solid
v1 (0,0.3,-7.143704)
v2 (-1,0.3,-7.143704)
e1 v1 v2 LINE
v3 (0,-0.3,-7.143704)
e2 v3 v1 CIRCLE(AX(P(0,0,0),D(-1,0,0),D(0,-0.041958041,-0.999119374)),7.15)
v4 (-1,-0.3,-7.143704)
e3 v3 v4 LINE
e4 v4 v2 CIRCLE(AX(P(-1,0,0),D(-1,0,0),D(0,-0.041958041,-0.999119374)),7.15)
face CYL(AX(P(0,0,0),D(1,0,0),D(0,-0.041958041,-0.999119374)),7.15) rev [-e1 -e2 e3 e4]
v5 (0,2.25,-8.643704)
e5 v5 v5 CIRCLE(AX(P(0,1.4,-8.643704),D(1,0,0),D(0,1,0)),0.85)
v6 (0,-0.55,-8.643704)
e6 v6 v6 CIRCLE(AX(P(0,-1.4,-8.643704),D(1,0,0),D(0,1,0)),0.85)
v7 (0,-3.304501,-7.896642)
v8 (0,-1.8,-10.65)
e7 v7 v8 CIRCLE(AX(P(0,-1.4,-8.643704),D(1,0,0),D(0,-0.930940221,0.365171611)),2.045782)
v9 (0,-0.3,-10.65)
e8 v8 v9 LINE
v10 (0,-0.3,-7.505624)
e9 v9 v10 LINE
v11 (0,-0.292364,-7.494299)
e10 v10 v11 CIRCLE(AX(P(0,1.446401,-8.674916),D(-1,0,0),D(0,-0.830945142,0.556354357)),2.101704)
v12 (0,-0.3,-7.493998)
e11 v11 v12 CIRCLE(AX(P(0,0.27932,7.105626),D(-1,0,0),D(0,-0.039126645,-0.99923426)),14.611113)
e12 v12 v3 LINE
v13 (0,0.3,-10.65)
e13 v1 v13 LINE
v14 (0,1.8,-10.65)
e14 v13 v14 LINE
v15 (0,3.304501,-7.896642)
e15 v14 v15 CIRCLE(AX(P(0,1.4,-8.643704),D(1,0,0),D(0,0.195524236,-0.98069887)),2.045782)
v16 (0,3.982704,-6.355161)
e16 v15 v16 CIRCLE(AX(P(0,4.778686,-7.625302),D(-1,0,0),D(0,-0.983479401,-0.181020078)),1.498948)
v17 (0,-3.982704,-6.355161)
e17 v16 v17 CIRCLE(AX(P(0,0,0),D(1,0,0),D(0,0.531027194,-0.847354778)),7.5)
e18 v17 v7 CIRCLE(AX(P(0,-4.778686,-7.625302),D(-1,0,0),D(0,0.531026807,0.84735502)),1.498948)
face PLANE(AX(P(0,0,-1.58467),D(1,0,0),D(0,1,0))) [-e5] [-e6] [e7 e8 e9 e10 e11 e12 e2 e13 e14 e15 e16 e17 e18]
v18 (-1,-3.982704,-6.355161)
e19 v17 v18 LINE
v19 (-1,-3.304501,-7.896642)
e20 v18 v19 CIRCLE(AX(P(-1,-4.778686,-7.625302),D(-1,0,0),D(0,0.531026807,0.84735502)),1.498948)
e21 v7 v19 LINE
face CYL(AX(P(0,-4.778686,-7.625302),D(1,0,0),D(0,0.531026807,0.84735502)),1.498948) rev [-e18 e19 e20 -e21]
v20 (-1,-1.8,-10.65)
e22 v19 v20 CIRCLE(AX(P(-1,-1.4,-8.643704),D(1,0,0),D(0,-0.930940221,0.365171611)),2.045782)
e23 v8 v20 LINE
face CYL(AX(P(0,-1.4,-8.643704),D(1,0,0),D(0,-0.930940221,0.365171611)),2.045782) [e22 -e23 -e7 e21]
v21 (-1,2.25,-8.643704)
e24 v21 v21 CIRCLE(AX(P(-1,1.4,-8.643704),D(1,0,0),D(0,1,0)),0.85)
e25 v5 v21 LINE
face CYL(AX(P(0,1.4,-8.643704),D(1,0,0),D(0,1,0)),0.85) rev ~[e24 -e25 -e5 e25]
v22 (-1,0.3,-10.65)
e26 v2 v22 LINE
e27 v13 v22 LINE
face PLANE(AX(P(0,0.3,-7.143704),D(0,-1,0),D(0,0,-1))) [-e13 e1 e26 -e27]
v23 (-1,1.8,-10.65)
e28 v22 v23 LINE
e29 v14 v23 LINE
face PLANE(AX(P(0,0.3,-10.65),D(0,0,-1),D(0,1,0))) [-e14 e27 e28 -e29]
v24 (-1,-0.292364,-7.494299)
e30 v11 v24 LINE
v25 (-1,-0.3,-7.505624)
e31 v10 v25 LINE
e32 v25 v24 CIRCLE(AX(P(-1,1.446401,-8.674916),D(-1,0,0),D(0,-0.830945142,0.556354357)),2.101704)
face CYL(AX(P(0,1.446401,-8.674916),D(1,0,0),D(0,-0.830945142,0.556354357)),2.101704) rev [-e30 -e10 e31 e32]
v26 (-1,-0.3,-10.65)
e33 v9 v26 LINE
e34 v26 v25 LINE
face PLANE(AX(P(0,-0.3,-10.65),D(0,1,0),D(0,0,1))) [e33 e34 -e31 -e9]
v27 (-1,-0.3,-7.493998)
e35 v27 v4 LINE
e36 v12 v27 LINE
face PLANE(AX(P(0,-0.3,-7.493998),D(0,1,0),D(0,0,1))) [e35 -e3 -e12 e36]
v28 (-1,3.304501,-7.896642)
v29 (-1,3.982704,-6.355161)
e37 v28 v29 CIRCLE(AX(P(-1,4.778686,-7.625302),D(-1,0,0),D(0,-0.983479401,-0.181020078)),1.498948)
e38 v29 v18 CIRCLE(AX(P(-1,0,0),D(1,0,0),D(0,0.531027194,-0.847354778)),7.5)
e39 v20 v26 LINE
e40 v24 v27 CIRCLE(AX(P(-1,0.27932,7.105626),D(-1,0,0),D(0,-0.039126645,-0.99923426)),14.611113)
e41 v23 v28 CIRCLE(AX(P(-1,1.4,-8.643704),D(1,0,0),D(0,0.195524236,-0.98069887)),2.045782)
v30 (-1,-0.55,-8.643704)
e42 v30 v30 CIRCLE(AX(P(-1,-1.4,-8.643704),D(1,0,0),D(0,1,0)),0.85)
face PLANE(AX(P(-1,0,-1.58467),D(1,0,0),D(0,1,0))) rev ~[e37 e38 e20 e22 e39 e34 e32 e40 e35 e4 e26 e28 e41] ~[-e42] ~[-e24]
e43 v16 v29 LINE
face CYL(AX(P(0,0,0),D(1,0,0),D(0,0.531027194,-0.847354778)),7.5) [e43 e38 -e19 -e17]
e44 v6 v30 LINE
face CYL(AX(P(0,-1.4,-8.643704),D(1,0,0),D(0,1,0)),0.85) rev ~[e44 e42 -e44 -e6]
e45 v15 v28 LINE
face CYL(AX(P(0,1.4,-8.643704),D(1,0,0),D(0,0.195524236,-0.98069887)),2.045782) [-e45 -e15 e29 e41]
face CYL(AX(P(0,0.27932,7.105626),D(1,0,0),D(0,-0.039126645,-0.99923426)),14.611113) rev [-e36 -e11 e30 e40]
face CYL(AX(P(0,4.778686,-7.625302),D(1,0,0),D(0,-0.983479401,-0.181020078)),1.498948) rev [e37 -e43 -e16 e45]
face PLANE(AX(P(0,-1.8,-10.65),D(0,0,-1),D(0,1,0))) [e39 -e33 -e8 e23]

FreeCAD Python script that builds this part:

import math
import FreeCAD as App
import Part
import Sketcher

V = App.Vector
Q = App.Units.Quantity

doc = App.newDocument("Part")
body = doc.addObject("PartDesign::Body", "Body")

# Sketch on YZ plane
sketch1 = body.newObject("Sketcher::SketchObject", "Sketch")
sketch1.AttachmentSupport = (doc.getObject("YZ_Plane"), [""])
sketch1.MapMode = "FlatFace"
sketch1.addGeometry([
    Part.ArcOfCircle(Part.Circle(V(0, 0, 0), V(0, 0, 1), 7.15), math.radians(-87.595275), math.radians(267.595275)),  # 0
    Part.LineSegment(V(0.3, -7.143704, 0), V(0.3, -10.65, 0)),  # 1
    Part.LineSegment(V(0.3, -10.65, 0), V(1.8, -10.65, 0)),  # 2
    Part.ArcOfCircle(Part.Circle(V(1.4, -8.643704, 0), V(0, 0, 1), 2.045782), math.radians(-78.72465), math.radians(21.418144)),  # 3
    Part.ArcOfCircle(Part.Circle(V(4.778686, -7.625302, 0), V(0, 0, 1), 1.498948), math.radians(122.074858), math.radians(190.429182)),  # 4
    Part.ArcOfCircle(Part.Circle(V(0, 0, 0), V(0, 0, 1), 7.5), math.radians(-57.925116), math.radians(237.925116)),  # 5
    Part.ArcOfCircle(Part.Circle(V(-4.778686, -7.625302, 0), V(0, 0, 1), 1.498948), math.radians(-10.429182), math.radians(57.925142)),  # 6
    Part.ArcOfCircle(Part.Circle(V(-1.4, -8.643704, 0), V(0, 0, 1), 2.045782), math.radians(158.581856), math.radians(258.72465)),  # 7
    Part.LineSegment(V(-1.8, -10.65, 0), V(-0.3, -10.65, 0)),  # 8
    Part.LineSegment(V(-0.3, -10.65, 0), V(-0.3, -7.505624, 0)),  # 9
    Part.ArcOfCircle(Part.Circle(V(1.446401, -8.674916, 0), V(0, 0, 1), 2.101704), math.radians(145.823587), math.radians(146.19595)),  # 10
    Part.ArcOfCircle(Part.Circle(V(0.27932, 7.105626, 0), V(0, 0, 1), 14.611113), math.radians(-92.272331), math.radians(-92.242364)),  # 11
    Part.LineSegment(V(-0.3, -7.493998, 0), V(-0.3, -7.143704, 0)),  # 12
    Part.Circle(V(-1.4, -8.643704, 0), V(0, 0, 1), 0.85),  # 13
    Part.Circle(V(1.4, -8.643704, 0), V(0, 0, 1), 0.85),  # 14
], False)
sketch1.addConstraint([
    Sketcher.Constraint("Coincident", 0, 1, 1, 1),
    Sketcher.Constraint("Coincident", 1, 2, 2, 1),
    Sketcher.Constraint("Coincident", 2, 2, 3, 1),
    Sketcher.Constraint("Coincident", 3, 2, 4, 2),
    Sketcher.Constraint("Tangent", 4, 1, 5, 1),
    Sketcher.Constraint("Tangent", 5, 2, 6, 2),
    Sketcher.Constraint("Coincident", 6, 1, 7, 1),
    Sketcher.Constraint("Coincident", 7, 2, 8, 1),
    Sketcher.Constraint("Coincident", 8, 2, 9, 1),
    Sketcher.Constraint("Coincident", 9, 2, 10, 2),
    Sketcher.Constraint("Coincident", 10, 1, 11, 2),
    Sketcher.Constraint("Coincident", 11, 1, 12, 1),
    Sketcher.Constraint("Coincident", 12, 2, 0, 2),
    Sketcher.Constraint("Vertical", 1),
    Sketcher.Constraint("Horizontal", 2),
    Sketcher.Constraint("Horizontal", 8),
    Sketcher.Constraint("Vertical", 9),
    Sketcher.Constraint("Vertical", 12),
    Sketcher.Constraint("Coincident", 0, 3, -1, 1),
    Sketcher.Constraint("Coincident", 5, 3, -1, 1),
    Sketcher.Constraint("Coincident", 13, 3, 7, 3),
    Sketcher.Constraint("Coincident", 14, 3, 3, 3),
    Sketcher.Constraint("Equal", 4, 6),
    Sketcher.Constraint("Equal", 3, 7),
    Sketcher.Constraint("Equal", 13, 14),
    Sketcher.Constraint("Symmetric", 3, 3, 7, 3, -2),
    Sketcher.Constraint("Symmetric", 1, 2, 8, 2, -2),
    Sketcher.Constraint("Horizontal", 4, 3, 6, 3),
    Sketcher.Constraint("Horizontal", 0, 1, 12, 2),
    Sketcher.Constraint("Diameter", 13, Q("1.7 mm")),
    Sketcher.Constraint("Radius", 5, Q("7.5 mm")),
    Sketcher.Constraint("Radius", 0, Q("7.15 mm")),
    Sketcher.Constraint("DistanceX", 2, 1, 2, 2, Q("1.5 mm")),
    Sketcher.Constraint("DistanceX", -1, 1, 3, 3, Q("1.4 mm")),
    Sketcher.Constraint("DistanceX", -1, 1, 0, 1, Q("0.3 mm")),
    Sketcher.Constraint("DistanceY", 3, 3, 0, 1, Q("1.5 mm")),
    Sketcher.Constraint("DistanceY", 1, 2, -1, 1, Q("10.65 mm")),
    Sketcher.Constraint("Radius", 4, Q("1.498948 mm")),
    Sketcher.Constraint("DistanceY", 11, 1, -1, 1, Q("7.493998 mm")),
    Sketcher.Constraint("Radius", 10, Q("2.101704 mm")),
    Sketcher.Constraint("Radius", 11, Q("14.611113 mm")),
    Sketcher.Constraint("DistanceX", -1, 1, 10, 3, Q("1.446401 mm")),
    Sketcher.Constraint("DistanceX", -1, 1, 3, 2, Q("3.304501 mm")),
    Sketcher.Constraint("DistanceY", 10, 1, -1, 1, Q("7.494299 mm")),
    Sketcher.Constraint("DistanceY", 9, 1, 9, 2, Q("3.144376 mm")),
])
pad1 = body.newObject("PartDesign::Pad", "Pad")
pad1.Profile = sketch1
pad1.Length = 1
pad1.Reversed = True

doc.recompute()
